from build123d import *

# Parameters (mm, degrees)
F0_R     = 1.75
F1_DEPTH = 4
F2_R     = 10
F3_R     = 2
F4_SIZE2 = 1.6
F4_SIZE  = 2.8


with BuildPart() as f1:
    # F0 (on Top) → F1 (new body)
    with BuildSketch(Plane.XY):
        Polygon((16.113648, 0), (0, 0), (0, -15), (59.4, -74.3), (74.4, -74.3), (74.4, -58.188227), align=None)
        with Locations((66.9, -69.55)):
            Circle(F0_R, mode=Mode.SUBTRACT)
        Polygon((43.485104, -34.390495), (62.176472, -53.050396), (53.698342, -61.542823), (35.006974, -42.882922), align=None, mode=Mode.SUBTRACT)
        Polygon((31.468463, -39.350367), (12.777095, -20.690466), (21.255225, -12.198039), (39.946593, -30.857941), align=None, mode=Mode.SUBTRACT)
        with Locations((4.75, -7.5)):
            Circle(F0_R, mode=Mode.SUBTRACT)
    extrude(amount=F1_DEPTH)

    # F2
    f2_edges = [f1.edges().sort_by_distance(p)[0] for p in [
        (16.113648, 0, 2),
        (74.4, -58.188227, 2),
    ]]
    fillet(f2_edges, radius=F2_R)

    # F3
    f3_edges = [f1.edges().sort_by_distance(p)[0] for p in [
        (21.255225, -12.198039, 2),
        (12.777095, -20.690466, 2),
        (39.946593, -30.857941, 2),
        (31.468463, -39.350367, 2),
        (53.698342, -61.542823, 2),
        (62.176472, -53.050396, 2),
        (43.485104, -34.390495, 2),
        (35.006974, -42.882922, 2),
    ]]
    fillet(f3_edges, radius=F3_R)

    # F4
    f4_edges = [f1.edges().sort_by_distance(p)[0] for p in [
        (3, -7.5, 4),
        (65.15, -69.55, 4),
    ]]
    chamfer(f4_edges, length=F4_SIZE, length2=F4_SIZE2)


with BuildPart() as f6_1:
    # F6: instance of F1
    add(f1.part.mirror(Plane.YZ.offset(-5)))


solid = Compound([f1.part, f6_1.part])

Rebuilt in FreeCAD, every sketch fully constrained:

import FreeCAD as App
import Part
import Sketcher


def edges_at(feature, points):
    """Names of the edges that pass closest to the given points."""
    edges = feature.Shape.Edges
    near = lambda p: min(range(len(edges)), key=lambda i: edges[i].distToShape(Part.Vertex(*p))[0])
    return sorted({f"Edge{near(p) + 1}" for p in points})


def add_polygon(sketch, points):
    """Adds a closed chain of lines whose ends are joined by coincident constraints."""
    first, n = sketch.GeometryCount, len(points)
    for a, b in zip(points, points[1:] + points[:1]):
        sketch.addGeometry(Part.LineSegment(App.Vector(*a, 0), App.Vector(*b, 0)), False)
    for i in range(n):
        sketch.addConstraint(Sketcher.Constraint("Coincident", first + i, 2, first + (i + 1) % n, 1))

doc = App.newDocument("Part")
body = doc.addObject("PartDesign::Body", "Body")

# Sketch on XY plane
sketch1 = doc.addObject("Sketcher::SketchObject", "Sketch")
body.addObject(sketch1)
sketch1.AttachmentSupport = (doc.XY_Plane, [""])
sketch1.MapMode = "FlatFace"
add_polygon(sketch1, [(16.1, 0), (0, 0), (0, -15), (59.4, -74.3), (74.4, -74.3), (74.4, -58.2)])  # lines 0-5
sketch1.addGeometry(Part.Circle(App.Vector(66.9, -69.5, 0), App.Vector(0, 0, 1), 1.8), False)  # 6
add_polygon(sketch1, [(35, -42.9), (43.5, -34.4), (62.2, -53.1), (53.7, -61.5)])  # lines 7-10
add_polygon(sketch1, [(39.9, -30.9), (31.5, -39.4), (12.8, -20.7), (21.3, -12.2)])  # lines 11-14
sketch1.addGeometry(Part.Circle(App.Vector(4.8, -7.5, 0), App.Vector(0, 0, 1), 1.8), False)  # 15
sketch1.addConstraint([
    Sketcher.Constraint("Horizontal", 0),
    Sketcher.Constraint("Vertical", 1),
    Sketcher.Constraint("Horizontal", 3),
    Sketcher.Constraint("Vertical", 4),
    Sketcher.Constraint("Coincident", 0, 2, -1, 1),
    Sketcher.Constraint("Equal", 6, 15),
    Sketcher.Constraint("Parallel", 2, 5),
    Sketcher.Constraint("Perpendicular", 5, 7),
    Sketcher.Constraint("Perpendicular", 7, 8),
    Sketcher.Constraint("Perpendicular", 8, 9),
    Sketcher.Constraint("Perpendicular", 9, 10),
    Sketcher.Constraint("Perpendicular", 10, 11),
    Sketcher.Constraint("Perpendicular", 11, 12),
    Sketcher.Constraint("Perpendicular", 12, 13),
    Sketcher.Constraint("Perpendicular", 13, 14),
    Sketcher.Constraint("Equal", 3, 1),
    Sketcher.Constraint("Equal", 9, 11),
    Sketcher.Constraint("Equal", 10, 12),
    Sketcher.Constraint("Diameter", 6, 3.5),
    Sketcher.Constraint("DistanceX", 3, 1, 3, 2, 15.0),
    Sketcher.Constraint("Distance", 7, 12.0),
    Sketcher.Constraint("DistanceX", -1, 1, 6, 3, 66.9),
    Sketcher.Constraint("DistanceY", 15, 3, -1, 1, 7.5),
    Sketcher.Constraint("DistanceX", -1, 1, 2, 2, 59.4),
    Sketcher.Constraint("DistanceY", 2, 2, -1, 1, 74.3),
    Sketcher.Constraint("DistanceY", 6, 3, -1, 1, 69.55),
    Sketcher.Constraint("DistanceX", -1, 1, 15, 3, 4.75),
    Sketcher.Constraint("DistanceX", 0, 2, 0, 1, 16.113648),
    Sketcher.Constraint("DistanceY", 8, 2, 7, 2, 18.659901),
    Sketcher.Constraint("DistanceX", -1, 1, 8, 2, 62.176472),
    Sketcher.Constraint("DistanceY", 13, 2, -1, 1, 12.198039),
    Sketcher.Constraint("DistanceY", 4, 2, 7, 2, 23.797732),
    Sketcher.Constraint("DistanceX", 11, 2, 10, 2, 3.538511),
])
pad1 = doc.addObject("PartDesign::Pad", "Pad")
body.addObject(pad1)
pad1.Profile = sketch1
pad1.Length = 4
doc.recompute()

fillet = doc.addObject("PartDesign::Fillet", "Fillet")
body.addObject(fillet)
fillet.Base = (pad1, edges_at(pad1, [(16.114, 0, 2), (74.4, -58.188, 2)]))
fillet.Radius = 10
doc.recompute()

fillet2 = doc.addObject("PartDesign::Fillet", "Fillet001")
body.addObject(fillet2)
fillet2.Base = (fillet, edges_at(fillet, [
    (21.255, -12.198, 2),
    (12.777, -20.69, 2),
    (39.947, -30.858, 2),
    (31.468, -39.35, 2),
    (53.698, -61.543, 2),
    (62.176, -53.05, 2),
    (43.485, -34.39, 2),
    (35.007, -42.883, 2),
]))
fillet2.Radius = 2
doc.recompute()

chamfer = doc.addObject("PartDesign::Chamfer", "Chamfer")
body.addObject(chamfer)
chamfer.Base = (fillet2, edges_at(fillet2, [(3, -7.5, 4), (65.15, -69.55, 4)]))
chamfer.ChamferType = "Two distances"
chamfer.Size = 2.8
chamfer.Size2 = 1.6
body2 = doc.addObject("PartDesign::Body", "Body001")
doc.recompute()

mirroring = doc.addObject("Part::Mirroring", "Mirroring")
mirroring.Source = body
mirroring.Base = App.Vector(-5, 0, 0)
mirroring.Normal = App.Vector(1, 0, 0)
body2.BaseFeature = mirroring
doc.recompute()
mirroring.Visibility = False

doc.recompute()
